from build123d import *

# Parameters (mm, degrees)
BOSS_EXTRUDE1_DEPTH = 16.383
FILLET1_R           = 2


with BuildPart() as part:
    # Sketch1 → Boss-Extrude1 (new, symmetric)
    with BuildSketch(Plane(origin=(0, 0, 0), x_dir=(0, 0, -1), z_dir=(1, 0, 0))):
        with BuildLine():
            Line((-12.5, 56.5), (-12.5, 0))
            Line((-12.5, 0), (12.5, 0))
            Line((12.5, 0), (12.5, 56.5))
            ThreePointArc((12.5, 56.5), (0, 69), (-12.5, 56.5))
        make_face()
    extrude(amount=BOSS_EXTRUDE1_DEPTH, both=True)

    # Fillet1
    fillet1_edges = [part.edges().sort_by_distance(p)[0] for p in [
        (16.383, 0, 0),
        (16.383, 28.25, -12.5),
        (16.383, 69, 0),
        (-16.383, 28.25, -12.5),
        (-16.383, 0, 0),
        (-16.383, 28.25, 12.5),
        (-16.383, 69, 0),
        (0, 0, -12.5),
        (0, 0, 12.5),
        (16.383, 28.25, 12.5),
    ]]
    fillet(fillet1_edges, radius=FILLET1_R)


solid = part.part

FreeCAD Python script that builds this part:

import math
import FreeCAD as App
import Part
import Sketcher
from FreeCAD import Vector
Q = App.Units.Quantity

doc = App.newDocument("Part")
body = doc.addObject("PartDesign::Body", "Body")

# Sketch on YZ plane
sketch1 = doc.addObject("Sketcher::SketchObject", "Sketch")
body.addObject(sketch1)
sketch1.AttachmentSupport = (doc.YZ_Plane, [""])
sketch1.MapMode = "FlatFace"
sketch1.addGeometry([
    Part.LineSegment(Vector(56, 12, 0), Vector(0, 12, 0)),
    Part.LineSegment(Vector(0, 12, 0), Vector(0, -12, 0)),
    Part.LineSegment(Vector(0, -12, 0), Vector(56, -12, 0)),
    Part.ArcOfCircle(Part.Circle(Vector(56, 0, 0), Vector(0, 0, 1), 12), math.radians(-90), math.radians(90)),
], False)
sketch1.addConstraint([
    Sketcher.Constraint("Coincident", 0, 2, 1, 1),
    Sketcher.Constraint("Coincident", 1, 2, 2, 1),
    Sketcher.Constraint("Tangent", 2, 2, 3, 1),
    Sketcher.Constraint("Tangent", 3, 2, 0, 1),
    Sketcher.Constraint("Horizontal", 0),
    Sketcher.Constraint("Vertical", 1),
    Sketcher.Constraint("Horizontal", 2),
    Sketcher.Constraint("Symmetric", 0, 2, 1, 2, -1, 1),
    Sketcher.Constraint("Radius", 3, Q("12.5 mm")),
    Sketcher.Constraint("DistanceX", 0, 2, 0, 1, Q("56.5 mm")),
])
pad1 = doc.addObject("PartDesign::Pad", "Pad")
body.addObject(pad1)
pad1.Profile = sketch1
pad1.Length = 32.766
pad1.Midplane = True
doc.recompute()

fillet = doc.addObject("PartDesign::Fillet", "Fillet")
body.addObject(fillet)
fillet.Base = (pad1, ["Edge1"])
fillet.UseAllEdges = True
fillet.Radius = 2

doc.recompute()
